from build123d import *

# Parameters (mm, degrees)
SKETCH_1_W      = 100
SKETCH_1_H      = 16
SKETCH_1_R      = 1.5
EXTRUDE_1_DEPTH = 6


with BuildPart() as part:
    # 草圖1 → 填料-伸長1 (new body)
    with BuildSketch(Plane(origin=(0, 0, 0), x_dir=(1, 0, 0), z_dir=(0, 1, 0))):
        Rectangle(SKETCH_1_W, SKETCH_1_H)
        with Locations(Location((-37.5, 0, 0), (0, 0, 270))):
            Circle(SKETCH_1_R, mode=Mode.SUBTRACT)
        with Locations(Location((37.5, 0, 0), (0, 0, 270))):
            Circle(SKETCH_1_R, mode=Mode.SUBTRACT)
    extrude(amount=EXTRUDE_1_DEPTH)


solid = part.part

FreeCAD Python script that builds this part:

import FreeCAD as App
import Part
import Sketcher

V = App.Vector
Q = App.Units.Quantity


def add_polygon(sketch, points):
    """Adds a closed chain of lines whose ends are joined by coincident constraints."""
    first, n = sketch.GeometryCount, len(points)
    for a, b in zip(points, points[1:] + points[:1]):
        sketch.addGeometry(Part.LineSegment(App.Vector(*a, 0), App.Vector(*b, 0)), False)
    for i in range(n):
        sketch.addConstraint(Sketcher.Constraint("Coincident", first + i, 2, first + (i + 1) % n, 1))

doc = App.newDocument("Part")
body = doc.addObject("PartDesign::Body", "Body")

sketch1 = body.newObject("Sketcher::SketchObject", "Sketch")
sketch1.AttachmentSupport = (doc.getObject("XZ_Plane"), [""])
sketch1.MapMode = "FlatFace"
add_polygon(sketch1, [(-50, -8), (-50, 8), (50, 8), (50, -8)])
sketch1.addGeometry(Part.Circle(V(-37.5, 0, 0), V(0, 0, 1), 1.5), False)
sketch1.addGeometry(Part.Circle(V(37.5, 0, 0), V(0, 0, 1), 1.5), False)
sketch1.addConstraint([
    Sketcher.Constraint("Vertical", 0),
    Sketcher.Constraint("Horizontal", 1),
    Sketcher.Constraint("Vertical", 2),
    Sketcher.Constraint("Horizontal", 3),
    Sketcher.Constraint("Equal", 4, 5),
    Sketcher.Constraint("Symmetric", 4, 3, 5, 3, -1, 1),
    Sketcher.Constraint("Symmetric", 0, 2, 2, 2, -1, 1),
    Sketcher.Constraint("PointOnObject", 4, 3, -1),
    Sketcher.Constraint("Diameter", 4, Q("3 mm")),
    Sketcher.Constraint("DistanceX", 1, 1, 1, 2, Q("100 mm")),
    Sketcher.Constraint("DistanceY", 0, 1, 0, 2, Q("16 mm")),
    Sketcher.Constraint("DistanceX", 4, 3, 5, 3, Q("75 mm")),
])
pad1 = body.newObject("PartDesign::Pad", "Pad")
pad1.Profile = sketch1
pad1.Length = 6
pad1.Reversed = True

doc.recompute()
